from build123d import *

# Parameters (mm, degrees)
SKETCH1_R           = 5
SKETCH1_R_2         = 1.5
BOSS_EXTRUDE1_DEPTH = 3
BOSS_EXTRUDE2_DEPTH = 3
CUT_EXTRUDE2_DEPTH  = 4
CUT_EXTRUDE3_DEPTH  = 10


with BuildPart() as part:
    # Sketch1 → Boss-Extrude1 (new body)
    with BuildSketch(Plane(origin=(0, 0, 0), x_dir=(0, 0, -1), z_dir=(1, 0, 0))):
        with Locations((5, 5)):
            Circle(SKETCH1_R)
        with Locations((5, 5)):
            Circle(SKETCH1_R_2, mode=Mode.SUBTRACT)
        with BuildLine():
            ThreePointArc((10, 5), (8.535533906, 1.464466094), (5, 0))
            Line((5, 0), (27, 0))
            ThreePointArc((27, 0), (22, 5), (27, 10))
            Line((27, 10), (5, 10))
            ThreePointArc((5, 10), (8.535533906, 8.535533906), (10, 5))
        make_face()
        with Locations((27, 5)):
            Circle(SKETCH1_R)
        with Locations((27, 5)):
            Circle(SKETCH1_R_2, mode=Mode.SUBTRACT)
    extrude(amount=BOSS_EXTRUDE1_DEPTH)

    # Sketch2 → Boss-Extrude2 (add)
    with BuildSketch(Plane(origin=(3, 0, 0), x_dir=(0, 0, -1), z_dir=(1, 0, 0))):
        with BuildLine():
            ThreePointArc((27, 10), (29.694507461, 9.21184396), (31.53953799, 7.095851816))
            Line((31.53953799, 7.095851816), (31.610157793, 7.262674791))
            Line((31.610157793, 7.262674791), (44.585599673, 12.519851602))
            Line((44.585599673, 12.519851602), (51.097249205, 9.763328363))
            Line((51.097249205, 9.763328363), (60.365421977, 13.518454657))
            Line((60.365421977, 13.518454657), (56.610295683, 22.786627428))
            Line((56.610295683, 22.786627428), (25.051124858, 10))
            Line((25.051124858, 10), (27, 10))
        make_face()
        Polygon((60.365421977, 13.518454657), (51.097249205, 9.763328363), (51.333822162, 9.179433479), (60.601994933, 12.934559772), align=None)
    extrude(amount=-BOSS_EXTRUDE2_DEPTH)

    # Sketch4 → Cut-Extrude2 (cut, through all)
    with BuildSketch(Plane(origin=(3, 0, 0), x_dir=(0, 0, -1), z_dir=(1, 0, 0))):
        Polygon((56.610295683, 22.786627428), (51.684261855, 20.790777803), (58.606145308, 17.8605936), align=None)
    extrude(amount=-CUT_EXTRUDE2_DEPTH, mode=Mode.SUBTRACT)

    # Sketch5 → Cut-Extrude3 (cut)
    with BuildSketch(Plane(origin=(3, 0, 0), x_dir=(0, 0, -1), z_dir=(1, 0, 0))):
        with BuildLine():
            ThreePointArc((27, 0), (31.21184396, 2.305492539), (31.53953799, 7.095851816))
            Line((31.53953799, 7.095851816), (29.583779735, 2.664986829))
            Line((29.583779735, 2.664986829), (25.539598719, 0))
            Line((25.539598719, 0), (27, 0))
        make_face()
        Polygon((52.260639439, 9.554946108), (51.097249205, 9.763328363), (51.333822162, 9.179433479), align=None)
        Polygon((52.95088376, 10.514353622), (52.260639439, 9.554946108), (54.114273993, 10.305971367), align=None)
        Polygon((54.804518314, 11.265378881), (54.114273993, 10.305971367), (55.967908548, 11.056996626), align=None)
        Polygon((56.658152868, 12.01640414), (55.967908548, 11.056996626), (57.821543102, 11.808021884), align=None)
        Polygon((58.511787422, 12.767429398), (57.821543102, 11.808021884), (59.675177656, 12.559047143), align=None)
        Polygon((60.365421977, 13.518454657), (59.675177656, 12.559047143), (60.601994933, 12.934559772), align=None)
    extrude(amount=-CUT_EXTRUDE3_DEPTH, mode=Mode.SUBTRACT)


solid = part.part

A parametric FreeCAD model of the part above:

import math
import FreeCAD as App
import Part
import Sketcher
Q = App.Units.Quantity


def add_polygon(sketch, points):
    """Adds a closed chain of lines whose ends are joined by coincident constraints."""
    first, n = sketch.GeometryCount, len(points)
    for a, b in zip(points, points[1:] + points[:1]):
        sketch.addGeometry(Part.LineSegment(App.Vector(*a, 0), App.Vector(*b, 0)), False)
    for i in range(n):
        sketch.addConstraint(Sketcher.Constraint("Coincident", first + i, 2, first + (i + 1) % n, 1))

doc = App.newDocument("Part")
params = doc.addObject("Spreadsheet::Sheet", "Params")
for row, (alias, value) in enumerate([
    ("sketch1_diameter", "3 mm"),
    ("sketch1_radius", "5 mm"),
    ("sketch1_height", "22 mm"),
    ("pad1_length", "3 mm"),
    ("sketch2_radius", "5 mm"),
    ("sketch2_length", "14 mm"),
    ("sketch2_length2", "10 mm"),
    ("sketch2_length3", "0.63 mm"),
    ("pad2_length", "3 mm"),
    ("sketch4_radius", "5 mm"),
    ("sketch4_length", "1 mm"),
    ("sketch4_length2", "0.63 mm"),
    ("pocket2_length", "10 mm"),
], start=1):
    params.set(f"A{row}", alias)
    params.set(f"B{row}", "=" + value)
    params.setAlias(f"B{row}", alias)

body = doc.addObject("PartDesign::Body", "Body")

sketch1 = body.newObject("Sketcher::SketchObject", "Sketch")
sketch1.AttachmentSupport = (doc.getObject("YZ_Plane"), [""])
sketch1.MapMode = "FlatFace"
sketch1.addGeometry(Part.ArcOfCircle(Part.Circle(App.Vector(5, -5, 0), App.Vector(0, 0, 1), 5), math.radians(0), math.radians(180)), False)
sketch1.addGeometry(Part.LineSegment(App.Vector(0, -5, 0), App.Vector(0, -27, 0)), False)
sketch1.addGeometry(Part.ArcOfCircle(Part.Circle(App.Vector(5, -27, 0), App.Vector(0, 0, 1), 5), math.radians(180), math.radians(360)), False)
sketch1.addGeometry(Part.LineSegment(App.Vector(10, -27, 0), App.Vector(10, -5, 0)), False)
sketch1.addGeometry(Part.Circle(App.Vector(5, -5, 0), App.Vector(0, 0, 1), 1.5), False)
sketch1.addGeometry(Part.Circle(App.Vector(5, -27, 0), App.Vector(0, 0, 1), 1.5), False)
sketch1.addConstraint(Sketcher.Constraint("Tangent", 0, 2, 1, 1))
sketch1.addConstraint(Sketcher.Constraint("Tangent", 1, 2, 2, 1))
sketch1.addConstraint(Sketcher.Constraint("Tangent", 2, 2, 3, 1))
sketch1.addConstraint(Sketcher.Constraint("Tangent", 3, 2, 0, 1))
sketch1.addConstraint(Sketcher.Constraint("Vertical", 1))
sketch1.addConstraint(Sketcher.Constraint("Vertical", 3))
sketch1.addConstraint(Sketcher.Constraint("Coincident", 4, 3, 0, 3))
sketch1.addConstraint(Sketcher.Constraint("Coincident", 5, 3, 2, 3))
sketch1.addConstraint(Sketcher.Constraint("Equal", 4, 5))
sketch1.addConstraint(Sketcher.Constraint("PointOnObject", 0, 2, -2))
sketch1.addConstraint(Sketcher.Constraint("Diameter", 4, Q("3 mm")))
sketch1.addConstraint(Sketcher.Constraint("Radius", 0, Q("5 mm")))
sketch1.addConstraint(Sketcher.Constraint("DistanceY", 1, 2, 1, 1, Q("22 mm")))
sketch1.addConstraint(Sketcher.Constraint("DistanceY", 0, 3, -1, 1, Q("5 mm")))
sketch1.setExpression("Constraints[10]", "Params.sketch1_diameter")
sketch1.setExpression("Constraints[11]", "Params.sketch1_radius")
sketch1.setExpression("Constraints[12]", "Params.sketch1_height")
pad1 = body.newObject("PartDesign::Pad", "Pad")
pad1.Profile = sketch1
pad1.setExpression("Length", "Params.pad1_length")

sketch2 = body.newObject("Sketcher::SketchObject", "Sketch001")
sketch2.AttachmentSupport = (doc.getObject("YZ_Plane"), [""])
sketch2.MapMode = "FlatFace"
sketch2.AttachmentOffset = App.Placement(App.Vector(0, 0, 3), App.Rotation())
sketch2.addGeometry(Part.ArcOfCircle(Part.Circle(App.Vector(5, -27, 0), App.Vector(0, 0, 1), 5), math.radians(-65.21778), math.radians(0)), False)
sketch2.addGeometry(Part.LineSegment(App.Vector(7.095852, -31.539538, 0), App.Vector(7.262675, -31.610158, 0)), False)
sketch2.addGeometry(Part.LineSegment(App.Vector(7.262675, -31.610158, 0), App.Vector(12.519852, -44.5856, 0)), False)
sketch2.addGeometry(Part.LineSegment(App.Vector(12.519852, -44.5856, 0), App.Vector(9.763328, -51.097249, 0)), False)
sketch2.addGeometry(Part.LineSegment(App.Vector(9.763328, -51.097249, 0), App.Vector(9.179433, -51.333822, 0)), False)
sketch2.addGeometry(Part.LineSegment(App.Vector(9.179433, -51.333822, 0), App.Vector(12.93456, -60.601995, 0)), False)
sketch2.addGeometry(Part.LineSegment(App.Vector(12.93456, -60.601995, 0), App.Vector(13.518455, -60.365422, 0)), False)
sketch2.addGeometry(Part.LineSegment(App.Vector(13.518455, -60.365422, 0), App.Vector(22.786627, -56.610296, 0)), False)
sketch2.addGeometry(Part.LineSegment(App.Vector(22.786627, -56.610296, 0), App.Vector(10, -25.051125, 0)), False)
sketch2.addGeometry(Part.LineSegment(App.Vector(10, -25.051125, 0), App.Vector(10, -27, 0)), False)
sketch2.addConstraint(Sketcher.Constraint("Coincident", 0, 1, 1, 1))
sketch2.addConstraint(Sketcher.Constraint("Coincident", 1, 2, 2, 1))
sketch2.addConstraint(Sketcher.Constraint("Coincident", 2, 2, 3, 1))
sketch2.addConstraint(Sketcher.Constraint("Coincident", 3, 2, 4, 1))
sketch2.addConstraint(Sketcher.Constraint("Coincident", 4, 2, 5, 1))
sketch2.addConstraint(Sketcher.Constraint("Coincident", 5, 2, 6, 1))
sketch2.addConstraint(Sketcher.Constraint("Coincident", 6, 2, 7, 1))
sketch2.addConstraint(Sketcher.Constraint("Coincident", 7, 2, 8, 1))
sketch2.addConstraint(Sketcher.Constraint("Coincident", 8, 2, 9, 1))
sketch2.addConstraint(Sketcher.Constraint("Tangent", 9, 2, 0, 2))
sketch2.addConstraint(Sketcher.Constraint("Vertical", 9))
sketch2.addConstraint(Sketcher.Constraint("Perpendicular", 1, 3))
sketch2.addConstraint(Sketcher.Constraint("Perpendicular", 2, 4))
sketch2.addConstraint(Sketcher.Constraint("Perpendicular", 4, 5))
sketch2.addConstraint(Sketcher.Constraint("Perpendicular", 5, 6))
sketch2.addConstraint(Sketcher.Constraint("Parallel", 6, 7))
sketch2.addConstraint(Sketcher.Constraint("Perpendicular", 7, 8))
sketch2.addConstraint(Sketcher.Constraint("Equal", 4, 6))
sketch2.addConstraint(Sketcher.Constraint("Equal", 5, 7))
sketch2.addConstraint(Sketcher.Constraint("Radius", 0, Q("5 mm")))
sketch2.addConstraint(Sketcher.Constraint("Distance", 2, Q("14 mm")))
sketch2.addConstraint(Sketcher.Constraint("Distance", 5, Q("10 mm")))
sketch2.addConstraint(Sketcher.Constraint("DistanceX", -1, 1, 0, 3, Q("5 mm")))
sketch2.addConstraint(Sketcher.Constraint("DistanceY", 0, 3, -1, 1, Q("27 mm")))
sketch2.addConstraint(Sketcher.Constraint("Distance", 4, Q("0.63 mm")))
sketch2.addConstraint(Sketcher.Constraint("DistanceX", 0, 1, 2, 2, Q("5.424 mm")))
sketch2.addConstraint(Sketcher.Constraint("DistanceY", 2, 2, -1, 1, Q("44.5856 mm")))
sketch2.addConstraint(Sketcher.Constraint("DistanceY", 6, 2, 4, 2, Q("9.0316 mm")))
sketch2.addConstraint(Sketcher.Constraint("DistanceY", 9, 2, 9, 1, Q("1.948875 mm")))
sketch2.addConstraint(Sketcher.Constraint("DistanceX", -1, 1, 0, 1, Q("7.095852 mm")))
sketch2.setExpression("Constraints[19]", "Params.sketch2_radius")
sketch2.setExpression("Constraints[20]", "Params.sketch2_length")
sketch2.setExpression("Constraints[21]", "Params.sketch2_length2")
sketch2.setExpression("Constraints[24]", "Params.sketch2_length3")
pad2 = body.newObject("PartDesign::Pad", "Pad001")
pad2.Profile = sketch2
pad2.setExpression("Length", "Params.pad2_length")
pad2.Reversed = True

sketch3 = body.newObject("Sketcher::SketchObject", "Sketch002")
sketch3.AttachmentSupport = (doc.getObject("YZ_Plane"), [""])
sketch3.MapMode = "FlatFace"
sketch3.AttachmentOffset = App.Placement(App.Vector(0, 0, 3), App.Rotation())
add_polygon(sketch3, [(22.786627, -56.610296), (20.790778, -51.684262), (17.860594, -58.606145)])
sketch3.addConstraint(Sketcher.Constraint("Perpendicular", 0, 2))
sketch3.addConstraint(Sketcher.Constraint("Equal", 0, 2))
sketch3.addConstraint(Sketcher.Constraint("Distance", 0, Q("5.315 mm")))
sketch3.addConstraint(Sketcher.Constraint("DistanceY", 0, 2, -1, 1, Q("51.684262 mm")))
sketch3.addConstraint(Sketcher.Constraint("DistanceX", 0, 2, 2, 2, Q("1.99585 mm")))
sketch3.addConstraint(Sketcher.Constraint("DistanceX", -1, 1, 0, 2, Q("20.790778 mm")))
pocket1 = body.newObject("PartDesign::Pocket", "Pocket")
pocket1.Profile = sketch3
pocket1.Type = "ThroughAll"

sketch4 = body.newObject("Sketcher::SketchObject", "Sketch003")
sketch4.AttachmentSupport = (doc.getObject("YZ_Plane"), [""])
sketch4.MapMode = "FlatFace"
sketch4.AttachmentOffset = App.Placement(App.Vector(0, 0, 3), App.Rotation())
sketch4.addGeometry(Part.ArcOfCircle(Part.Circle(App.Vector(5, -27, 0), App.Vector(0, 0, 1), 5), math.radians(180), math.radians(294.78222)), False)
sketch4.addGeometry(Part.LineSegment(App.Vector(7.095852, -31.539538, 0), App.Vector(2.664987, -29.58378, 0)), False)
sketch4.addGeometry(Part.LineSegment(App.Vector(2.664987, -29.58378, 0), App.Vector(0, -25.539599, 0)), False)
sketch4.addGeometry(Part.LineSegment(App.Vector(0, -25.539599, 0), App.Vector(0, -27, 0)), False)
add_polygon(sketch4, [(9.554946, -52.260639), (9.763328, -51.097249), (9.179433, -51.333822)])
add_polygon(sketch4, [(10.514354, -52.950884), (9.554946, -52.260639), (10.305971, -54.114274)])
add_polygon(sketch4, [(11.265379, -54.804518), (10.305971, -54.114274), (11.056997, -55.967909)])
add_polygon(sketch4, [(12.016404, -56.658153), (11.056997, -55.967909), (11.808022, -57.821543)])
add_polygon(sketch4, [(12.767429, -58.511787), (11.808022, -57.821543), (12.559047, -59.675178)])
add_polygon(sketch4, [(13.518455, -60.365422), (12.559047, -59.675178), (12.93456, -60.601995)])
sketch4.addConstraint(Sketcher.Constraint("Coincident", 0, 2, 1, 1))
sketch4.addConstraint(Sketcher.Constraint("Coincident", 1, 2, 2, 1))
sketch4.addConstraint(Sketcher.Constraint("Coincident", 2, 2, 3, 1))
sketch4.addConstraint(Sketcher.Constraint("Tangent", 3, 2, 0, 1))
sketch4.addConstraint(Sketcher.Constraint("Vertical", 3))
sketch4.addConstraint(Sketcher.Constraint("Coincident", 7, 2, 6, 2))
sketch4.addConstraint(Sketcher.Constraint("Coincident", 10, 2, 8, 2))
sketch4.addConstraint(Sketcher.Constraint("Coincident", 13, 2, 11, 2))
sketch4.addConstraint(Sketcher.Constraint("Coincident", 16, 2, 14, 2))
sketch4.addConstraint(Sketcher.Constraint("Coincident", 19, 2, 17, 2))
sketch4.addConstraint(Sketcher.Constraint("PointOnObject", 2, 2, -2))
sketch4.addConstraint(Sketcher.Constraint("Perpendicular", 5, 6))
sketch4.addConstraint(Sketcher.Constraint("Parallel", 6, 8))
sketch4.addConstraint(Sketcher.Constraint("Parallel", 4, 9))
sketch4.addConstraint(Sketcher.Constraint("Parallel", 7, 10))
sketch4.addConstraint(Sketcher.Constraint("Parallel", 8, 11))
sketch4.addConstraint(Sketcher.Constraint("Parallel", 9, 12))
sketch4.addConstraint(Sketcher.Constraint("Parallel", 10, 13))
sketch4.addConstraint(Sketcher.Constraint("Parallel", 11, 14))
sketch4.addConstraint(Sketcher.Constraint("Parallel", 12, 15))
sketch4.addConstraint(Sketcher.Constraint("Parallel", 13, 16))
sketch4.addConstraint(Sketcher.Constraint("Parallel", 14, 17))
sketch4.addConstraint(Sketcher.Constraint("Parallel", 15, 18))
sketch4.addConstraint(Sketcher.Constraint("Parallel", 16, 19))
sketch4.addConstraint(Sketcher.Constraint("Parallel", 17, 20))
sketch4.addConstraint(Sketcher.Constraint("Perpendicular", 20, 21))
sketch4.addConstraint(Sketcher.Constraint("Equal", 1, 2))
sketch4.addConstraint(Sketcher.Constraint("Equal", 4, 7))
sketch4.addConstraint(Sketcher.Constraint("Equal", 7, 9))
sketch4.addConstraint(Sketcher.Constraint("Equal", 9, 10))
sketch4.addConstraint(Sketcher.Constraint("Equal", 12, 13))
sketch4.addConstraint(Sketcher.Constraint("Equal", 15, 16))
sketch4.addConstraint(Sketcher.Constraint("Equal", 18, 19))
sketch4.addConstraint(Sketcher.Constraint("Radius", 0, Q("5 mm")))
sketch4.addConstraint(Sketcher.Constraint("Distance", 6, Q("1 mm")))
sketch4.addConstraint(Sketcher.Constraint("DistanceY", 0, 3, -1, 1, Q("27 mm")))
sketch4.addConstraint(Sketcher.Constraint("Distance", 5, Q("0.63 mm")))
sketch4.addConstraint(Sketcher.Constraint("DistanceY", 3, 2, 3, 1, Q("1.460401 mm")))
sketch4.addConstraint(Sketcher.Constraint("Distance", 1, Q("4.8433 mm")))
sketch4.addConstraint(Sketcher.Constraint("DistanceY", 6, 2, 0, 2, Q("20.721101 mm")))
sketch4.addConstraint(Sketcher.Constraint("DistanceX", -1, 1, 0, 2, Q("7.095852 mm")))
sketch4.addConstraint(Sketcher.Constraint("DistanceX", -1, 1, 4, 2, Q("9.763328 mm")))
sketch4.addConstraint(Sketcher.Constraint("DistanceY", 4, 2, -1, 1, Q("51.097249 mm")))
sketch4.setExpression("Constraints[51]", "Params.sketch4_radius")
sketch4.setExpression("Constraints[52]", "Params.sketch4_length")
sketch4.setExpression("Constraints[54]", "Params.sketch4_length2")
pocket2 = body.newObject("PartDesign::Pocket", "Pocket001")
pocket2.Profile = sketch4
pocket2.setExpression("Length", "Params.pocket2_length")

doc.recompute()
